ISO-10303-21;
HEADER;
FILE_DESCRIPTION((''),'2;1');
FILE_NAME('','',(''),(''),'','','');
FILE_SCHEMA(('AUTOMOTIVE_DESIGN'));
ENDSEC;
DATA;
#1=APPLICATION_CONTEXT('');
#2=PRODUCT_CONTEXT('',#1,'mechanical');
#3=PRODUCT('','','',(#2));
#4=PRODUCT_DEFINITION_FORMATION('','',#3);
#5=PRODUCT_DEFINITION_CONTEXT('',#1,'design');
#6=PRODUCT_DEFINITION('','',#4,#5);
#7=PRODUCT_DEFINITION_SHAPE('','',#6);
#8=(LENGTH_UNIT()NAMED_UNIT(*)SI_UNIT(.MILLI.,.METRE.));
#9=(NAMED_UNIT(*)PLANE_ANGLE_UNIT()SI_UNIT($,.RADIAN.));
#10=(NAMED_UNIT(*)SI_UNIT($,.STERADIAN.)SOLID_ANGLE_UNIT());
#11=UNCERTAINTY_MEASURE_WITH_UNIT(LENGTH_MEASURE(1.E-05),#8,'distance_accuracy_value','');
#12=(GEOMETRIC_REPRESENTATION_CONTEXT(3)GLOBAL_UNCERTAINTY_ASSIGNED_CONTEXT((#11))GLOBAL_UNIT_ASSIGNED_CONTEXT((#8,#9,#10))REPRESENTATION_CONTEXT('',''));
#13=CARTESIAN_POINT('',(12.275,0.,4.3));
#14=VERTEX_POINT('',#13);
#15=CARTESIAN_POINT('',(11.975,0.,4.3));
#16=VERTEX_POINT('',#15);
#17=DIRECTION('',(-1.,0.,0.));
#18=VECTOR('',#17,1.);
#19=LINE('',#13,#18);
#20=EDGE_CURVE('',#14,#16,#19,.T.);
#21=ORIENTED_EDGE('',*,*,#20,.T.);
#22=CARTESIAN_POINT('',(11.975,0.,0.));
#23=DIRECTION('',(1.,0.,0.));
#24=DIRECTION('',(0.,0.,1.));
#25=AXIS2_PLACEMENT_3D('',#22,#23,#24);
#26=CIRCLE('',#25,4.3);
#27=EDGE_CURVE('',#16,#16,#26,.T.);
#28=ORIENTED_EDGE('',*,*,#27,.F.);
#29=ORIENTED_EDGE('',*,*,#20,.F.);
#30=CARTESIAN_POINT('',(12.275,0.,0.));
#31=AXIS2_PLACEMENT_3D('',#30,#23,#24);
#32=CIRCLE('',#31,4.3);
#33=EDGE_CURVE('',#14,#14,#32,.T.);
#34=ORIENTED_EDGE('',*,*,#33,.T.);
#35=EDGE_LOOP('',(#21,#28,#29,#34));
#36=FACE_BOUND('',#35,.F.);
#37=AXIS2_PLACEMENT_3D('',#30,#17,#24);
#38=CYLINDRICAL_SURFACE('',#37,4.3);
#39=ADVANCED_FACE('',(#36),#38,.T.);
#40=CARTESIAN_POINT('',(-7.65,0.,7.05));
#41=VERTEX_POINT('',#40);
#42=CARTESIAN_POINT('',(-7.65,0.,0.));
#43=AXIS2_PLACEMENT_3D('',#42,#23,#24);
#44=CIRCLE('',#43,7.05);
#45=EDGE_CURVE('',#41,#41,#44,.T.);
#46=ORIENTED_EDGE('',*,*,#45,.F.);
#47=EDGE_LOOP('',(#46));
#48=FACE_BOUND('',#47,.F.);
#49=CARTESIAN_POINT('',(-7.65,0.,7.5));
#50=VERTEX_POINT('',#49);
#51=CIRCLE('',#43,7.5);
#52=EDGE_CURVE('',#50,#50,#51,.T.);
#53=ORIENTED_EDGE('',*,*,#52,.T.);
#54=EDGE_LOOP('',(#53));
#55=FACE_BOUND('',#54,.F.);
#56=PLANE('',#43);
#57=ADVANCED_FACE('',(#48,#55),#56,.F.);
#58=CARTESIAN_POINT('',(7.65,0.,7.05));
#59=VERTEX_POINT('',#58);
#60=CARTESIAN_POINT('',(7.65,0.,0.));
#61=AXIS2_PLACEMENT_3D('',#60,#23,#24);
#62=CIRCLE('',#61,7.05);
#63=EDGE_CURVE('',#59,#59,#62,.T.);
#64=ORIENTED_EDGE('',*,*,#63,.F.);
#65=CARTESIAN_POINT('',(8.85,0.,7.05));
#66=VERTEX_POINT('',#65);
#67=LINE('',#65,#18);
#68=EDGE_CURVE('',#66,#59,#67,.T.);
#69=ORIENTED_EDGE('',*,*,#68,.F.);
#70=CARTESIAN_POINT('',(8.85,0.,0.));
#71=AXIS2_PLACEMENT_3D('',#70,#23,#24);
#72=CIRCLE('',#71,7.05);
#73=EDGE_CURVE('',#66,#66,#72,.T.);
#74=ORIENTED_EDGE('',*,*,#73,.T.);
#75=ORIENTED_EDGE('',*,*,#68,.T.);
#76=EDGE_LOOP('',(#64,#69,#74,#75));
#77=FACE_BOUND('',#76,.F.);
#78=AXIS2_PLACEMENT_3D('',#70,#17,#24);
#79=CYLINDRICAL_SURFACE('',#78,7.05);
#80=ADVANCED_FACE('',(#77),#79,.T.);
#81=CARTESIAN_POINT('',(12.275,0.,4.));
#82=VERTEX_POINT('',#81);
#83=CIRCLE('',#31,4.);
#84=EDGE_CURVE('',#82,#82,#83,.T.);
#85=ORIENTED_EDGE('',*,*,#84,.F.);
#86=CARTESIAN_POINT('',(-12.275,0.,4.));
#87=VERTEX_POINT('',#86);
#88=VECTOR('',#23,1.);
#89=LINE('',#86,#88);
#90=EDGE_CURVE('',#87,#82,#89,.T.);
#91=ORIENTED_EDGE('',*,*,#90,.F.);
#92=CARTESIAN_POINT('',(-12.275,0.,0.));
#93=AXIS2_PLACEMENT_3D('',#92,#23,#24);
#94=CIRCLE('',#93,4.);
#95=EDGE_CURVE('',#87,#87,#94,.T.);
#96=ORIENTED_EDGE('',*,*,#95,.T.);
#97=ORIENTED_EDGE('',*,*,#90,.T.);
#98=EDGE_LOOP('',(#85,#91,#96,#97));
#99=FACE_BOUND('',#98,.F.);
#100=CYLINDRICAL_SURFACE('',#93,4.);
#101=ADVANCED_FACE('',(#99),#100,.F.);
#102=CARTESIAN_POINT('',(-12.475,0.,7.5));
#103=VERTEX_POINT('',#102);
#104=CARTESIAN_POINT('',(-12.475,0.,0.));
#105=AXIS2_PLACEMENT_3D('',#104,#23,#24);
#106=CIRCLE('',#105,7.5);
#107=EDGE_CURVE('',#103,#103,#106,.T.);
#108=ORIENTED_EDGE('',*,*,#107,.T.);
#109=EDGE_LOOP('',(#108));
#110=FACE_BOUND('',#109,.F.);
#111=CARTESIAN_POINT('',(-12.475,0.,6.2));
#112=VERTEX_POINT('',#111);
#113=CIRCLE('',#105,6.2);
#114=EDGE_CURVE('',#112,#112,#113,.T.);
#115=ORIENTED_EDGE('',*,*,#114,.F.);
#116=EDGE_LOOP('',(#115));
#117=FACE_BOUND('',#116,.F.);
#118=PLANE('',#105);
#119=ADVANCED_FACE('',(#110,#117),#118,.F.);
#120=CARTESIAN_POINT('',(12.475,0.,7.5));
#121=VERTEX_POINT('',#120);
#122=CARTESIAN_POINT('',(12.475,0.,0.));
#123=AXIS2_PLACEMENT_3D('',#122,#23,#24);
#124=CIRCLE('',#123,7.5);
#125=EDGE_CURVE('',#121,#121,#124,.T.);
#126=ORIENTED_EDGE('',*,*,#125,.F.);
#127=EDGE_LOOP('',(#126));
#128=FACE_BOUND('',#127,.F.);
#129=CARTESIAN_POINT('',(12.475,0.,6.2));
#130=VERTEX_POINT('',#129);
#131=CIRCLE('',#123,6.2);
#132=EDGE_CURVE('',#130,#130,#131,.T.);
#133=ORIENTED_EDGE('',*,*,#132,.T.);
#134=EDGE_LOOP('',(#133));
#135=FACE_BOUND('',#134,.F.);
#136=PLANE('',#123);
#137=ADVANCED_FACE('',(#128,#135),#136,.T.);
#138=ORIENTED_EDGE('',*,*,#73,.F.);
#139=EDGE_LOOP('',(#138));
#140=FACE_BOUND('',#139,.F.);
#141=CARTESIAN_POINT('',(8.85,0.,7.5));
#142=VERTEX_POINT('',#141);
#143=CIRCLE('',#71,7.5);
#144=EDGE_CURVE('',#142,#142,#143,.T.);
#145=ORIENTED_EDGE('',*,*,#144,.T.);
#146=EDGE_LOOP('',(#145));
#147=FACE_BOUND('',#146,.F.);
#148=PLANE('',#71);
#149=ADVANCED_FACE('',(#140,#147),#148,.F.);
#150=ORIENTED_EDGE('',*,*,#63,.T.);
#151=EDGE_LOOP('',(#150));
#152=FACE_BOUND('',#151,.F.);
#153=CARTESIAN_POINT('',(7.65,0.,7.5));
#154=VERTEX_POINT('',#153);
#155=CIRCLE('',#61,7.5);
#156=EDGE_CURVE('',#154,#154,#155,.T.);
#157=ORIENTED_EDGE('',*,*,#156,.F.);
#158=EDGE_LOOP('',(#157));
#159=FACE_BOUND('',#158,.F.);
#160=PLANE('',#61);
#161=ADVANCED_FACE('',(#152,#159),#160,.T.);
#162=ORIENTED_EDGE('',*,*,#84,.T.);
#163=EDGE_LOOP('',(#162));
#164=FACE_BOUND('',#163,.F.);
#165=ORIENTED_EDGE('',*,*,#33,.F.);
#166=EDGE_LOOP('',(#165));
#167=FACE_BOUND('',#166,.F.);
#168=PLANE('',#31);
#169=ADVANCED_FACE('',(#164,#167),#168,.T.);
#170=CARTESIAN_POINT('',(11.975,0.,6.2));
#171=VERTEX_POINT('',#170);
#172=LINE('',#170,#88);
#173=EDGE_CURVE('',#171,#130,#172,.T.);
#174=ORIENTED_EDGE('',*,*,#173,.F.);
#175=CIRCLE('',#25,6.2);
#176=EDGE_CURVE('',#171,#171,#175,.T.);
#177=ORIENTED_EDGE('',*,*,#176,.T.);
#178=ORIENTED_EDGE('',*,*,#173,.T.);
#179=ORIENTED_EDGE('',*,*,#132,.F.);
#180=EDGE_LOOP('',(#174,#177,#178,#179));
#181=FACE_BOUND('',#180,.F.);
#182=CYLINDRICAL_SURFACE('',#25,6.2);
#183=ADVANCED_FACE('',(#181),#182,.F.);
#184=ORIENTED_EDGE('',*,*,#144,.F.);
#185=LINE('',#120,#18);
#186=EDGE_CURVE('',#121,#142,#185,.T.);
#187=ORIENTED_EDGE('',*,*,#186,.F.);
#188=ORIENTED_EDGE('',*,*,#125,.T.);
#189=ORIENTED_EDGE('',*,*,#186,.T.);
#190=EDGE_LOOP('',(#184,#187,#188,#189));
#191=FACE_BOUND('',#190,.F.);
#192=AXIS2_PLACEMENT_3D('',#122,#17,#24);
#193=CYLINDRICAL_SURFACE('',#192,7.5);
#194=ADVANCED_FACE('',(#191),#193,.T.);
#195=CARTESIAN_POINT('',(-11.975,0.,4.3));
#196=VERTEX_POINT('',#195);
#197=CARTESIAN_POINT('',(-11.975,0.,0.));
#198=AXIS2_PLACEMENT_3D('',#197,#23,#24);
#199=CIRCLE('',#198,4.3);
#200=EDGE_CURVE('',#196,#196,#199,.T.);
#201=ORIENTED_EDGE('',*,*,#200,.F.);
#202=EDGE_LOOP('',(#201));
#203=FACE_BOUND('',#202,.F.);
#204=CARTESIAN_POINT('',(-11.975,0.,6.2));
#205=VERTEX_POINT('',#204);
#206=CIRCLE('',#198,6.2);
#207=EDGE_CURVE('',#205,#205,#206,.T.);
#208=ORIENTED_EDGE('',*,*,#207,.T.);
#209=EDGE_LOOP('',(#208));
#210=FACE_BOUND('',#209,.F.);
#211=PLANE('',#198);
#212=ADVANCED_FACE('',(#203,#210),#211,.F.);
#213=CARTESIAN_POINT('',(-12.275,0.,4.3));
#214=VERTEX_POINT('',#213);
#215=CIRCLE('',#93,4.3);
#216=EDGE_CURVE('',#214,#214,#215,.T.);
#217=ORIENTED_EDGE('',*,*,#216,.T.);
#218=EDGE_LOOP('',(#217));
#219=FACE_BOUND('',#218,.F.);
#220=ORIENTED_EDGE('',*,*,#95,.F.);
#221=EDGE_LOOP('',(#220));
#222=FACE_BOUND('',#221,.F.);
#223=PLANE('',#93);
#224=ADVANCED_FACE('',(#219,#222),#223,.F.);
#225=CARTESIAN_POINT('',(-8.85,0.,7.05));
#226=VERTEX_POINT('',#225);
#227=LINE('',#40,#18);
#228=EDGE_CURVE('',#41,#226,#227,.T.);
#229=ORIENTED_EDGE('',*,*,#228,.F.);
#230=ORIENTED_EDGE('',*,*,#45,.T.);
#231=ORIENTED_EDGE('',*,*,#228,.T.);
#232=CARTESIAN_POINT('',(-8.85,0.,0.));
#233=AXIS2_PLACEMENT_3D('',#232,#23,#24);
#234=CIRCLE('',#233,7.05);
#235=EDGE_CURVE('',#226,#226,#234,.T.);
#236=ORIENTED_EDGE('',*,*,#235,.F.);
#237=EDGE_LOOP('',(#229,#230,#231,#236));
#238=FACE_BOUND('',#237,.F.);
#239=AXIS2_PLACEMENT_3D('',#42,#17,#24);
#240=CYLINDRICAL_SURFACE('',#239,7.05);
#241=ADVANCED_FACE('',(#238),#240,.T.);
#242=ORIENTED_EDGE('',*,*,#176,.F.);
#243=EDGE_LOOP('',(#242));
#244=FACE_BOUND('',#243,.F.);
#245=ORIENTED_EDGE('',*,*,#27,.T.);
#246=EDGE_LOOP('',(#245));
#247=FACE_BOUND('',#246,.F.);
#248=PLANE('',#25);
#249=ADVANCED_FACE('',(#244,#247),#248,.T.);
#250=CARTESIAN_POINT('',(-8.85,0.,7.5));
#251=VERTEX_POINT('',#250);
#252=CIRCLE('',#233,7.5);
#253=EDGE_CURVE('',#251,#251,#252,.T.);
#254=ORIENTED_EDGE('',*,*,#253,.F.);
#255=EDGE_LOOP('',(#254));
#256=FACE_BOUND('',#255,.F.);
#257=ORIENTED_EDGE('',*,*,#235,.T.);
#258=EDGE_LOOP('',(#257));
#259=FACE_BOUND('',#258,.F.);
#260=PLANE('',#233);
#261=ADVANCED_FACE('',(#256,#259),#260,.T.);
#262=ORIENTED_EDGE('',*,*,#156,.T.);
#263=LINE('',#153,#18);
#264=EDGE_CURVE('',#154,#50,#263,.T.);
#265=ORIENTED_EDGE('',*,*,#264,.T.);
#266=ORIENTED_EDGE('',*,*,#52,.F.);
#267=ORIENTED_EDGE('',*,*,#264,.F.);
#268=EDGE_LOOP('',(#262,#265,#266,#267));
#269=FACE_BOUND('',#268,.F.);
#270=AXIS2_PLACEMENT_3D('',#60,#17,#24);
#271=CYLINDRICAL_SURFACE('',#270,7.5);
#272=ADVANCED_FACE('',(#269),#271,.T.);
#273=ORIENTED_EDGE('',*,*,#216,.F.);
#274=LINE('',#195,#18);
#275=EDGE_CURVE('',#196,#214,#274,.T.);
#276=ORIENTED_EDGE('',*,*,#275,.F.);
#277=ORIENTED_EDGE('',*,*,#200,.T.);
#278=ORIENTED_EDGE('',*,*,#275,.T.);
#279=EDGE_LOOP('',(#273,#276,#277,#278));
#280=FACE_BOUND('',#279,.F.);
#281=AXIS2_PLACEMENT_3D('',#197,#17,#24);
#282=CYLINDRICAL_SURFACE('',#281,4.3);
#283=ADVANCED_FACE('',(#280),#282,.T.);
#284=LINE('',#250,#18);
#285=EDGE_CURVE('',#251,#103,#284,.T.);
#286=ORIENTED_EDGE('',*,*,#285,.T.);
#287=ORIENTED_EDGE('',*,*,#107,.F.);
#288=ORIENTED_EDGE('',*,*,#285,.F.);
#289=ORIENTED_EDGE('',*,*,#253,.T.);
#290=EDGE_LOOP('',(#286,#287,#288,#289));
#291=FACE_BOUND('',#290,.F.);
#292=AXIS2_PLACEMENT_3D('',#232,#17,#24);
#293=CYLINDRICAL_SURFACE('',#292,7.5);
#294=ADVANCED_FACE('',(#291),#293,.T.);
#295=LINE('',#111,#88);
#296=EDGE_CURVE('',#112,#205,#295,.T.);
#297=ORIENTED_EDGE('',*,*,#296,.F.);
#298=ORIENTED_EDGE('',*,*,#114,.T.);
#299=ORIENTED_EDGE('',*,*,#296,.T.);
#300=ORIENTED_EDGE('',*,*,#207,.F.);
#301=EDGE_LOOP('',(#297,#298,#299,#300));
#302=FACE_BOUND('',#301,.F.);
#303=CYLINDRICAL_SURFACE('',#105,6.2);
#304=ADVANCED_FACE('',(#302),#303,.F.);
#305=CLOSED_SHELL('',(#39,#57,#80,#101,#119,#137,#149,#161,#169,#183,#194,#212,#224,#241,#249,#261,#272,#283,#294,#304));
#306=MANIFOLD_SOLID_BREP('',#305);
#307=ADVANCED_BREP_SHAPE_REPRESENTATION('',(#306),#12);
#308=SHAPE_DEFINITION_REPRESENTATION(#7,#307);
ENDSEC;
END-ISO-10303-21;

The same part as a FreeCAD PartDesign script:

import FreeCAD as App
import Part
import Sketcher
from FreeCAD import Vector
Q = App.Units.Quantity


def add_polygon(sketch, points):
    """Adds a closed chain of lines whose ends are joined by coincident constraints."""
    first, n = sketch.GeometryCount, len(points)
    for a, b in zip(points, points[1:] + points[:1]):
        sketch.addGeometry(Part.LineSegment(App.Vector(*a, 0), App.Vector(*b, 0)), False)
    for i in range(n):
        sketch.addConstraint(Sketcher.Constraint("Coincident", first + i, 2, first + (i + 1) % n, 1))

doc = App.newDocument("Part")
body = doc.addObject("PartDesign::Body", "Body")

sketch1 = doc.addObject("Sketcher::SketchObject", "Sketch")
body.addObject(sketch1)
sketch1.AttachmentSupport = (doc.XZ_Plane, [""])
sketch1.MapMode = "FlatFace"
add_polygon(sketch1, [(12.47, 6.2), (12.47, 7.5), (8.85, 7.5), (8.85, 7.05), (7.65, 7.05), (7.65, 7.5), (-7.65, 7.5), (-7.65, 7.05), (-8.85, 7.05), (-8.85, 7.5), (-12.47, 7.5), (-12.47, 6.2), (-11.97, 6.2), (-11.97, 4.3), (-12.28, 4.3), (-12.28, 4), (12.28, 4), (12.28, 4.3), (11.97, 4.3), (11.97, 6.2)])
sketch1.addConstraint([
    Sketcher.Constraint("Vertical", 0),
    Sketcher.Constraint("Horizontal", 1),
    Sketcher.Constraint("Vertical", 2),
    Sketcher.Constraint("Horizontal", 3),
    Sketcher.Constraint("Vertical", 4),
    Sketcher.Constraint("Horizontal", 5),
    Sketcher.Constraint("Vertical", 6),
    Sketcher.Constraint("Horizontal", 7),
    Sketcher.Constraint("Vertical", 8),
    Sketcher.Constraint("Horizontal", 9),
    Sketcher.Constraint("Vertical", 10),
    Sketcher.Constraint("Horizontal", 11),
    Sketcher.Constraint("Vertical", 12),
    Sketcher.Constraint("Horizontal", 13),
    Sketcher.Constraint("Vertical", 14),
    Sketcher.Constraint("Horizontal", 15),
    Sketcher.Constraint("Vertical", 16),
    Sketcher.Constraint("Horizontal", 17),
    Sketcher.Constraint("Vertical", 18),
    Sketcher.Constraint("Horizontal", 19),
    Sketcher.Constraint("Symmetric", 3, 2, 6, 2, -2),
    Sketcher.Constraint("Symmetric", 1, 2, 8, 2, -2),
    Sketcher.Constraint("Symmetric", 13, 2, 16, 2, -2),
    Sketcher.Constraint("Symmetric", 11, 2, 18, 2, -2),
    Sketcher.Constraint("Horizontal", 1, 2, 4, 2),
    Sketcher.Constraint("Equal", 1, 9),
    Sketcher.Constraint("Equal", 17, 14),
    Sketcher.Constraint("DistanceX", 3, 2, 3, 1, Q("1.2 mm")),
    Sketcher.Constraint("DistanceX", 5, 2, 5, 1, Q("15.3 mm")),
    Sketcher.Constraint("DistanceX", 11, 1, 11, 2, Q("0.5 mm")),
    Sketcher.Constraint("DistanceX", 13, 2, 13, 1, Q("0.3 mm")),
    Sketcher.Constraint("DistanceY", 0, 1, 0, 2, Q("1.3 mm")),
    Sketcher.Constraint("DistanceY", 12, 2, 12, 1, Q("1.9 mm")),
    Sketcher.Constraint("DistanceY", -1, 1, 14, 2, Q("4 mm")),
    Sketcher.Constraint("DistanceX", 15, 1, 15, 2, Q("24.55 mm")),
    Sketcher.Constraint("DistanceY", 2, 2, 2, 1, Q("0.45 mm")),
])
revolution = doc.addObject("PartDesign::Revolution", "Revolution")
body.addObject(revolution)
revolution.Profile = sketch1
revolution.ReferenceAxis = (sketch1, ["H_Axis"])
revolution.Angle = 360

doc.recompute()
